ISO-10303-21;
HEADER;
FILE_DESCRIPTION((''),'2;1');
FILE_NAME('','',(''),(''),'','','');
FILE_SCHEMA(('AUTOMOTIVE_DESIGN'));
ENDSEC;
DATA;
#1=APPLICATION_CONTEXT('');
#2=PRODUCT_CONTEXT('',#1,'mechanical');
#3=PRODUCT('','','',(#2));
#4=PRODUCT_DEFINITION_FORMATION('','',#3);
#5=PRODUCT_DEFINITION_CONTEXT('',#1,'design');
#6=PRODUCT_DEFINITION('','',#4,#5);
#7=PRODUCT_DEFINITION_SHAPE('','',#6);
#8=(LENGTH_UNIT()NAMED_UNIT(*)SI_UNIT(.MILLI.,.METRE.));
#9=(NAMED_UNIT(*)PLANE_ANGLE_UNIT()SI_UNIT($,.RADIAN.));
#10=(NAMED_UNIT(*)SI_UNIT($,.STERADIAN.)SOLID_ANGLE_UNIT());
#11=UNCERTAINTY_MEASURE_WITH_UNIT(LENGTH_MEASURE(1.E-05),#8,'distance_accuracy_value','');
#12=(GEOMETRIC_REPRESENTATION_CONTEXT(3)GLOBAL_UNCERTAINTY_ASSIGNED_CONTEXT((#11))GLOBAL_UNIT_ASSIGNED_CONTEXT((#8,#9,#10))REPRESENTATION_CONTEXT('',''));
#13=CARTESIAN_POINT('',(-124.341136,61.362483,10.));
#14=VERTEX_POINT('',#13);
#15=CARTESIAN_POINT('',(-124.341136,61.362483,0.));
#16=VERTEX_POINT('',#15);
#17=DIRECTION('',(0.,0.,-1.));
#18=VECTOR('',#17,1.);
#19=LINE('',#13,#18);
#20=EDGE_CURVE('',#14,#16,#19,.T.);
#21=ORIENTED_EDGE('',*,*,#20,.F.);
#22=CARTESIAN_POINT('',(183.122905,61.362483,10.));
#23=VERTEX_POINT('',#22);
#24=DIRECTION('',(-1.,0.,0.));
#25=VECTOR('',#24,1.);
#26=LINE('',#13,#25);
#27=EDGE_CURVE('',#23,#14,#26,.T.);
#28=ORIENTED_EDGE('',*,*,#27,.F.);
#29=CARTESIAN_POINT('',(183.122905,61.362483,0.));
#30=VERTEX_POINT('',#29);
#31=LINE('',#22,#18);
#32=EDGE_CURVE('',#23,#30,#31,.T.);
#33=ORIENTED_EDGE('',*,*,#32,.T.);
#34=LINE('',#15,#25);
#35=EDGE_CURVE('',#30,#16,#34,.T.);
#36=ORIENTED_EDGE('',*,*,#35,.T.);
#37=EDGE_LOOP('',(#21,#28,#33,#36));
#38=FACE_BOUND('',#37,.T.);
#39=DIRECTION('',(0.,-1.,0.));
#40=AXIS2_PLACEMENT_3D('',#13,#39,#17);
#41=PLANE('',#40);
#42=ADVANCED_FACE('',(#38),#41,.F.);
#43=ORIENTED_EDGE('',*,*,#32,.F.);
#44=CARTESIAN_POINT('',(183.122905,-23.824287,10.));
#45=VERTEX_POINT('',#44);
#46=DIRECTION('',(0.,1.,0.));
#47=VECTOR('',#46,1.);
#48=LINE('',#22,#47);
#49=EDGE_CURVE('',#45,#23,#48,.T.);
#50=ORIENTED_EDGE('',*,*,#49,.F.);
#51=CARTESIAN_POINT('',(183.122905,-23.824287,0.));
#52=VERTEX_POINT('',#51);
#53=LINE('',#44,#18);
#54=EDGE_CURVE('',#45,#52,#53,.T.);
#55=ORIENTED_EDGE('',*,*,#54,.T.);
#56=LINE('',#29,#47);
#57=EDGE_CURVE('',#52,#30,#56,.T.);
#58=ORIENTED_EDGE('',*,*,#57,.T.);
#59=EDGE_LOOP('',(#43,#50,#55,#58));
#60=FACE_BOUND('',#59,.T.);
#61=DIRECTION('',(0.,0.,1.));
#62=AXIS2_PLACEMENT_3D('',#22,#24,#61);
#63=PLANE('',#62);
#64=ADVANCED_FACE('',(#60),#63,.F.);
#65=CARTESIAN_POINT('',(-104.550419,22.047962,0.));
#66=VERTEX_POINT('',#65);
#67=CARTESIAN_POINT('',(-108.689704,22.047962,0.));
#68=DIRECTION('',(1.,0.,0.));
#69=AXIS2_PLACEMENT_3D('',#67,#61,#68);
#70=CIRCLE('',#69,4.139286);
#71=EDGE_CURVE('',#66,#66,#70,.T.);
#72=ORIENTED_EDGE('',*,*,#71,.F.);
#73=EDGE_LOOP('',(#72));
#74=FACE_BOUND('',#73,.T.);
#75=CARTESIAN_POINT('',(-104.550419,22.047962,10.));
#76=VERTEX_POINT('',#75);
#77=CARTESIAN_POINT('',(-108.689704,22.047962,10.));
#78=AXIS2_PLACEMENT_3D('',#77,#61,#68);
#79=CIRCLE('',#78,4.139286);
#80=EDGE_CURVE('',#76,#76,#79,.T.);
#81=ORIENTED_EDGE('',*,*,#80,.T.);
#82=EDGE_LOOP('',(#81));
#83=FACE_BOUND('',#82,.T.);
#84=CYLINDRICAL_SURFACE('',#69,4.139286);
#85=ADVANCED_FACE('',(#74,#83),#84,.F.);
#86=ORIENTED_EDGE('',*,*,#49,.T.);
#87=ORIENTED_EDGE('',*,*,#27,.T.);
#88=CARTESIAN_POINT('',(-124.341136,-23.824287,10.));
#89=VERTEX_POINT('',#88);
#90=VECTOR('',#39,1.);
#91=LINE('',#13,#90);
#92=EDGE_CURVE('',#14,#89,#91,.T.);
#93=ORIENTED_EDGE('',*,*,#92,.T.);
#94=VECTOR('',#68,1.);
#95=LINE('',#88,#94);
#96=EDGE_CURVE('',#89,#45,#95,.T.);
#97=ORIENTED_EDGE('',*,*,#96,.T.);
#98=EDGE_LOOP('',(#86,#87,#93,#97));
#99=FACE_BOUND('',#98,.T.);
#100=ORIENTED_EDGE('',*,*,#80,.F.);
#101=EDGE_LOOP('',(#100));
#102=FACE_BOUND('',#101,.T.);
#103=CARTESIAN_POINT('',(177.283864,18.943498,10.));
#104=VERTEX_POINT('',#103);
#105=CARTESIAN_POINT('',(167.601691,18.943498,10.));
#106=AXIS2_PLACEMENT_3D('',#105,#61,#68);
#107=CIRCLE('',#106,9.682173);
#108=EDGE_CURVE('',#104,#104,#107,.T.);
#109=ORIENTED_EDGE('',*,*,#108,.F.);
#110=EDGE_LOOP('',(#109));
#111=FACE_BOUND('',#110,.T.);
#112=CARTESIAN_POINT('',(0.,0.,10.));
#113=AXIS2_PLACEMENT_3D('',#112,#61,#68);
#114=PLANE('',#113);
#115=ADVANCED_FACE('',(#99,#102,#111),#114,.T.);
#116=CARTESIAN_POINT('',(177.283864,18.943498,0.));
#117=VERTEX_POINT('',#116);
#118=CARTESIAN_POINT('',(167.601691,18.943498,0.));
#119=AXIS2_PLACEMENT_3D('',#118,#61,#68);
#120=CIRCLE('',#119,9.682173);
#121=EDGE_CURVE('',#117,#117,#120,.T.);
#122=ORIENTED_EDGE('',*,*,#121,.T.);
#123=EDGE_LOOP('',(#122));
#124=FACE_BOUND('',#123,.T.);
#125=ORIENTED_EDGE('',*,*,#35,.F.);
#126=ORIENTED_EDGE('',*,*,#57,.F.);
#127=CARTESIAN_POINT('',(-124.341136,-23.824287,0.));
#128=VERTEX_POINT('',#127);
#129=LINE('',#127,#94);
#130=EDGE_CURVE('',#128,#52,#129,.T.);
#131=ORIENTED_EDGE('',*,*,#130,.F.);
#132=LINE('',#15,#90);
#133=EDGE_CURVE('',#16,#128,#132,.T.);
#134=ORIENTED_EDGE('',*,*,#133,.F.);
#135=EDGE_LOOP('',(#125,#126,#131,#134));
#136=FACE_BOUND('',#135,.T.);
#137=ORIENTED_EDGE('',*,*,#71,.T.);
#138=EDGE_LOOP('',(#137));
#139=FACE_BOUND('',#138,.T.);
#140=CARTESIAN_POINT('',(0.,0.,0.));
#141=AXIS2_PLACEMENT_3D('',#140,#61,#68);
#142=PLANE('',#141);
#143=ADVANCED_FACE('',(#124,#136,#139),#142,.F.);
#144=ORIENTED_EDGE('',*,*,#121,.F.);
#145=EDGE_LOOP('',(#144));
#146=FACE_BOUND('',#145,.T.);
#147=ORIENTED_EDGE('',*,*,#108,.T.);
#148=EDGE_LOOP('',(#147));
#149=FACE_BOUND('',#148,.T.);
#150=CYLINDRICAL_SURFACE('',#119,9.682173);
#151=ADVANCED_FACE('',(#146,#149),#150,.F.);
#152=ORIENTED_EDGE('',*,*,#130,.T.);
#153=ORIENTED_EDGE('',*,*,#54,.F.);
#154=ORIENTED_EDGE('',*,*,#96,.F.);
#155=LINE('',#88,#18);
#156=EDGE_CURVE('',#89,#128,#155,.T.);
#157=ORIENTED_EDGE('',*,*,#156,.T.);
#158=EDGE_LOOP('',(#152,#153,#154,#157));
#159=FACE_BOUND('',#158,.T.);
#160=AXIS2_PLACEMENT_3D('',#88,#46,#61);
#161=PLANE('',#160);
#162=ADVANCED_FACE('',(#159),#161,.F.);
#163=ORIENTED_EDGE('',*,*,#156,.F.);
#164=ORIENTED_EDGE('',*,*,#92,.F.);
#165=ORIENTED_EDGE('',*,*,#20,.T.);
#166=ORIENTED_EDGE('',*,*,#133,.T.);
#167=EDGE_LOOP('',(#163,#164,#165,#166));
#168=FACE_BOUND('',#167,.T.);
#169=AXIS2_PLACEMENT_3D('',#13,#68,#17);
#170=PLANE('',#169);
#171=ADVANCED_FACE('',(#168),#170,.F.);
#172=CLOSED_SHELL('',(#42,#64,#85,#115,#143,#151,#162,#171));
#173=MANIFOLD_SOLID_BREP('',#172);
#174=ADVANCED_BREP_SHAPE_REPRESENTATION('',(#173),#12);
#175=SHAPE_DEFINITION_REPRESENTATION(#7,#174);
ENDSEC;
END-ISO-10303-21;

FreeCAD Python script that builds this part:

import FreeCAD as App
import Part
import Sketcher

doc = App.newDocument("Part")
body = doc.addObject("PartDesign::Body", "Body")

# Sketch on XY plane
sketch1 = doc.addObject("Sketcher::SketchObject", "Sketch")
body.addObject(sketch1)
sketch1.AttachmentSupport = (doc.XY_Plane, [""])
sketch1.MapMode = "FlatFace"
sketch1.addGeometry([
    Part.LineSegment(App.Vector(-124, 61, 0), App.Vector(-124, -24, 0)),
    Part.LineSegment(App.Vector(-124, -24, 0), App.Vector(183, -24, 0)),
    Part.LineSegment(App.Vector(183, -24, 0), App.Vector(183, 61, 0)),
    Part.LineSegment(App.Vector(183, 61, 0), App.Vector(-124, 61, 0)),
], False)
sketch1.addConstraint([
    Sketcher.Constraint("Coincident", 0, 2, 1, 1),
    Sketcher.Constraint("Coincident", 1, 2, 2, 1),
    Sketcher.Constraint("Coincident", 2, 2, 3, 1),
    Sketcher.Constraint("Coincident", 3, 2, 0, 1),
    Sketcher.Constraint("Vertical", 0),
    Sketcher.Constraint("Horizontal", 1),
    Sketcher.Constraint("Vertical", 2),
    Sketcher.Constraint("Horizontal", 3),
    Sketcher.Constraint("DistanceX", 1, 1, 1, 2, 307.464041),
    Sketcher.Constraint("DistanceY", 0, 2, 0, 1, 85.18677),
    Sketcher.Constraint("DistanceX", 0, 2, -1, 1, 124.341136),
    Sketcher.Constraint("DistanceY", 0, 2, -1, 1, 23.824287),
])
pad1 = doc.addObject("PartDesign::Pad", "Pad")
body.addObject(pad1)
pad1.Profile = sketch1
pad1.Length = 10

# Sketch on XY plane
sketch2 = doc.addObject("Sketcher::SketchObject", "Sketch001")
body.addObject(sketch2)
sketch2.AttachmentSupport = (doc.XY_Plane, [""])
sketch2.MapMode = "FlatFace"
sketch2.AttachmentOffset = App.Placement(App.Vector(0, 0, 10), App.Rotation())
sketch2.addGeometry([
    Part.Circle(App.Vector(-108.7, 22, 0), App.Vector(0, 0, 1), 4.1),
    Part.Circle(App.Vector(167.6, 18.9, 0), App.Vector(0, 0, 1), 9.7),
], False)
sketch2.addConstraint([
    Sketcher.Constraint("Diameter", 0, 8.278571),
    Sketcher.Constraint("Diameter", 1, 19.364346),
    Sketcher.Constraint("DistanceX", -1, 1, 1, 3, 167.601691),
    Sketcher.Constraint("DistanceX", 0, 3, -1, 1, 108.689704),
    Sketcher.Constraint("DistanceY", -1, 1, 0, 3, 22.047962),
    Sketcher.Constraint("DistanceY", -1, 1, 1, 3, 18.943498),
])
pocket1 = doc.addObject("PartDesign::Pocket", "Pocket")
body.addObject(pocket1)
pocket1.Profile = sketch2
pocket1.Length = 10

doc.recompute()
